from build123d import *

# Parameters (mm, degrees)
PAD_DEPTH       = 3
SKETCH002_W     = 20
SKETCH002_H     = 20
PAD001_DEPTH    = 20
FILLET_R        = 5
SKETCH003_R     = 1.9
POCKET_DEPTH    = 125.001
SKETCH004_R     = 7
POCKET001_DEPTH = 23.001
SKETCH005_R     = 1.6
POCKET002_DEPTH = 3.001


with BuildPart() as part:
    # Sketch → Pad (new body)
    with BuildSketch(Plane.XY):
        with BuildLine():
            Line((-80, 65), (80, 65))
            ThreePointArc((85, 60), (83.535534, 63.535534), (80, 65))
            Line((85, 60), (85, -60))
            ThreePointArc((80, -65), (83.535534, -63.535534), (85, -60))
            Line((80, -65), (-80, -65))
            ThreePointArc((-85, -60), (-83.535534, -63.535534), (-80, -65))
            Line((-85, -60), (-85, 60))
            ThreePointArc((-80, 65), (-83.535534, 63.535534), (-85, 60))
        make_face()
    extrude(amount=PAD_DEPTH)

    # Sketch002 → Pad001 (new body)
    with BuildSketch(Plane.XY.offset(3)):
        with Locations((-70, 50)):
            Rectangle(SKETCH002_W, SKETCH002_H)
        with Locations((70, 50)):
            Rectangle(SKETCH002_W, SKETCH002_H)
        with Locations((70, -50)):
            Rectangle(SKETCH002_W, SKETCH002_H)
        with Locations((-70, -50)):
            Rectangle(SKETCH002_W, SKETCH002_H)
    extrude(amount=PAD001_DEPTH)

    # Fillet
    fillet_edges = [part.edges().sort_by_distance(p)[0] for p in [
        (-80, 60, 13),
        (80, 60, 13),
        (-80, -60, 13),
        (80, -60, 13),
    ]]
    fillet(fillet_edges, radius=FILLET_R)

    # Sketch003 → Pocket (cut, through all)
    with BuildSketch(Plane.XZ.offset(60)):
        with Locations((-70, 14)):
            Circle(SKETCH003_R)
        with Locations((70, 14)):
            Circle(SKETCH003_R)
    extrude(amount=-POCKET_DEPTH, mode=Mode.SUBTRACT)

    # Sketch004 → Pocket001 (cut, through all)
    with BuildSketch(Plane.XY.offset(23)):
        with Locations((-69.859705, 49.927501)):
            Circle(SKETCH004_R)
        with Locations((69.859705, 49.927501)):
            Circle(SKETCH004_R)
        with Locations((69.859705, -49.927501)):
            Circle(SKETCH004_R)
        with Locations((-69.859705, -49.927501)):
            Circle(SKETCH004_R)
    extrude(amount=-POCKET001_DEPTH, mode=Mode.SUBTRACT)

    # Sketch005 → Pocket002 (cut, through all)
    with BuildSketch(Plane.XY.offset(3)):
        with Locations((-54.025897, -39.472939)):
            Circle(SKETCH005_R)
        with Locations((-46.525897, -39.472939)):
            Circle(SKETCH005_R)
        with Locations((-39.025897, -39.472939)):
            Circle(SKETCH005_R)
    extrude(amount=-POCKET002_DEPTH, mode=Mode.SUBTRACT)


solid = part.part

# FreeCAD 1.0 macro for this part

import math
import FreeCAD as App
import Part
import Sketcher
Q = App.Units.Quantity


def edges_at(feature, points):
    """Names of the edges that pass closest to the given points."""
    edges = feature.Shape.Edges
    near = lambda p: min(range(len(edges)), key=lambda i: edges[i].distToShape(Part.Vertex(*p))[0])
    return sorted({f"Edge{near(p) + 1}" for p in points})

doc = App.newDocument("Part")
body = doc.addObject("PartDesign::Body", "Body")

sketch1 = body.newObject("Sketcher::SketchObject", "Sketch")
sketch1.AttachmentSupport = (doc.getObject("XY_Plane"), [""])
sketch1.MapMode = "FlatFace"
sketch1.addGeometry([
    Part.LineSegment(App.Vector(80, 65, 0), App.Vector(-80, 65, 0)),
    Part.ArcOfCircle(Part.Circle(App.Vector(-80, 60, 0), App.Vector(0, 0, 1), 5), math.radians(90), math.radians(180)),
    Part.LineSegment(App.Vector(-85, 60, 0), App.Vector(-85, -60, 0)),
    Part.ArcOfCircle(Part.Circle(App.Vector(-80, -60, 0), App.Vector(0, 0, 1), 5), math.radians(180), math.radians(270)),
    Part.LineSegment(App.Vector(-80, -65, 0), App.Vector(80, -65, 0)),
    Part.ArcOfCircle(Part.Circle(App.Vector(80, -60, 0), App.Vector(0, 0, 1), 5), math.radians(-90), math.radians(0)),
    Part.LineSegment(App.Vector(85, -60, 0), App.Vector(85, 60, 0)),
    Part.ArcOfCircle(Part.Circle(App.Vector(80, 60, 0), App.Vector(0, 0, 1), 5), math.radians(0), math.radians(90)),
], False)
sketch1.addConstraint([
    Sketcher.Constraint("Tangent", 0, 2, 1, 1),
    Sketcher.Constraint("Tangent", 1, 2, 2, 1),
    Sketcher.Constraint("Tangent", 2, 2, 3, 1),
    Sketcher.Constraint("Tangent", 3, 2, 4, 1),
    Sketcher.Constraint("Tangent", 4, 2, 5, 1),
    Sketcher.Constraint("Tangent", 5, 2, 6, 1),
    Sketcher.Constraint("Tangent", 6, 2, 7, 1),
    Sketcher.Constraint("Tangent", 7, 2, 0, 1),
    Sketcher.Constraint("Horizontal", 0),
    Sketcher.Constraint("Vertical", 2),
    Sketcher.Constraint("Horizontal", 4),
    Sketcher.Constraint("Vertical", 6),
    Sketcher.Constraint("Equal", 1, 3),
    Sketcher.Constraint("Equal", 3, 5),
    Sketcher.Constraint("Equal", 5, 7),
    Sketcher.Constraint("Symmetric", 1, 3, 5, 3, -1, 1),
    Sketcher.Constraint("Radius", 1, Q("5 mm")),
    Sketcher.Constraint("DistanceX", 0, 2, 0, 1, Q("160 mm")),
    Sketcher.Constraint("DistanceY", 2, 2, 2, 1, Q("120 mm")),
])
pad1 = body.newObject("PartDesign::Pad", "Pad")
pad1.Profile = sketch1
pad1.Length = 3

sketch2 = body.newObject("Sketcher::SketchObject", "Sketch001")
sketch2.AttachmentSupport = (doc.getObject("XY_Plane"), [""])
sketch2.MapMode = "FlatFace"
sketch2.AttachmentOffset = App.Placement(App.Vector(0, 0, 3), App.Rotation())
sketch2.addGeometry([
    Part.LineSegment(App.Vector(-80, 60, 0), App.Vector(-80, 40, 0)),
    Part.LineSegment(App.Vector(-80, 40, 0), App.Vector(-60, 40, 0)),
    Part.LineSegment(App.Vector(-60, 40, 0), App.Vector(-60, 60, 0)),
    Part.LineSegment(App.Vector(-60, 60, 0), App.Vector(-80, 60, 0)),
    Part.LineSegment(App.Vector(60, 60, 0), App.Vector(60, 40, 0)),
    Part.LineSegment(App.Vector(60, 40, 0), App.Vector(80, 40, 0)),
    Part.LineSegment(App.Vector(80, 40, 0), App.Vector(80, 60, 0)),
    Part.LineSegment(App.Vector(80, 60, 0), App.Vector(60, 60, 0)),
    Part.LineSegment(App.Vector(60, -40, 0), App.Vector(60, -60, 0)),
    Part.LineSegment(App.Vector(60, -60, 0), App.Vector(80, -60, 0)),
    Part.LineSegment(App.Vector(80, -60, 0), App.Vector(80, -40, 0)),
    Part.LineSegment(App.Vector(80, -40, 0), App.Vector(60, -40, 0)),
    Part.LineSegment(App.Vector(-80, -40, 0), App.Vector(-80, -60, 0)),
    Part.LineSegment(App.Vector(-80, -60, 0), App.Vector(-60, -60, 0)),
    Part.LineSegment(App.Vector(-60, -60, 0), App.Vector(-60, -40, 0)),
    Part.LineSegment(App.Vector(-60, -40, 0), App.Vector(-80, -40, 0)),
], False)
sketch2.addConstraint([
    Sketcher.Constraint("Coincident", 0, 2, 1, 1),
    Sketcher.Constraint("Coincident", 1, 2, 2, 1),
    Sketcher.Constraint("Coincident", 2, 2, 3, 1),
    Sketcher.Constraint("Coincident", 3, 2, 0, 1),
    Sketcher.Constraint("Coincident", 4, 2, 5, 1),
    Sketcher.Constraint("Coincident", 5, 2, 6, 1),
    Sketcher.Constraint("Coincident", 6, 2, 7, 1),
    Sketcher.Constraint("Coincident", 7, 2, 4, 1),
    Sketcher.Constraint("Coincident", 8, 2, 9, 1),
    Sketcher.Constraint("Coincident", 9, 2, 10, 1),
    Sketcher.Constraint("Coincident", 10, 2, 11, 1),
    Sketcher.Constraint("Coincident", 11, 2, 8, 1),
    Sketcher.Constraint("Coincident", 12, 2, 13, 1),
    Sketcher.Constraint("Coincident", 13, 2, 14, 1),
    Sketcher.Constraint("Coincident", 14, 2, 15, 1),
    Sketcher.Constraint("Coincident", 15, 2, 12, 1),
    Sketcher.Constraint("Vertical", 0),
    Sketcher.Constraint("Horizontal", 1),
    Sketcher.Constraint("Vertical", 2),
    Sketcher.Constraint("Horizontal", 3),
    Sketcher.Constraint("Vertical", 4),
    Sketcher.Constraint("Horizontal", 5),
    Sketcher.Constraint("Vertical", 6),
    Sketcher.Constraint("Horizontal", 7),
    Sketcher.Constraint("Vertical", 8),
    Sketcher.Constraint("Horizontal", 9),
    Sketcher.Constraint("Vertical", 10),
    Sketcher.Constraint("Horizontal", 11),
    Sketcher.Constraint("Vertical", 12),
    Sketcher.Constraint("Horizontal", 13),
    Sketcher.Constraint("Vertical", 14),
    Sketcher.Constraint("Horizontal", 15),
    Sketcher.Constraint("Symmetric", 2, 2, 8, 2, -1, 1),
    Sketcher.Constraint("Symmetric", 0, 2, 10, 2, -1, 1),
    Sketcher.Constraint("Symmetric", 6, 2, 12, 2, -1, 1),
    Sketcher.Constraint("Symmetric", 4, 2, 14, 2, -1, 1),
    Sketcher.Constraint("Symmetric", 1, 2, 4, 2, -2),
    Sketcher.Constraint("Symmetric", 3, 2, 6, 2, -2),
    Sketcher.Constraint("Equal", 15, 0),
    Sketcher.Constraint("DistanceX", 1, 1, 1, 2, Q("20 mm")),
    Sketcher.Constraint("DistanceX", 0, 2, -1, 1, Q("80 mm")),
    Sketcher.Constraint("DistanceY", -1, 1, 0, 2, Q("40 mm")),
])
pad2 = body.newObject("PartDesign::Pad", "Pad001")
pad2.Profile = sketch2
pad2.Length = 20
doc.recompute()

fillet = body.newObject("PartDesign::Fillet", "Fillet")
fillet.Base = (pad2, edges_at(pad2, [
    (-80, 60, 13),
    (80, 60, 13),
    (-80, -60, 13),
    (80, -60, 13),
]))
fillet.Radius = 5

sketch3 = body.newObject("Sketcher::SketchObject", "Sketch002")
sketch3.AttachmentSupport = (doc.getObject("XZ_Plane"), [""])
sketch3.MapMode = "FlatFace"
sketch3.AttachmentOffset = App.Placement(App.Vector(0, 0, 60), App.Rotation())
sketch3.addGeometry([
    Part.Circle(App.Vector(-70, 14, 0), App.Vector(0, 0, 1), 1.9),
    Part.Circle(App.Vector(70, 14, 0), App.Vector(0, 0, 1), 1.9),
], False)
sketch3.addConstraint([
    Sketcher.Constraint("Equal", 0, 1),
    Sketcher.Constraint("Symmetric", 0, 3, 1, 3, -2),
    Sketcher.Constraint("Diameter", 0, Q("3.8 mm")),
    Sketcher.Constraint("DistanceX", 0, 3, -1, 1, Q("70 mm")),
    Sketcher.Constraint("DistanceY", -1, 1, 0, 3, Q("14 mm")),
])
pocket1 = body.newObject("PartDesign::Pocket", "Pocket")
pocket1.Profile = sketch3
pocket1.Type = "ThroughAll"

sketch4 = body.newObject("Sketcher::SketchObject", "Sketch003")
sketch4.AttachmentSupport = (doc.getObject("XY_Plane"), [""])
sketch4.MapMode = "FlatFace"
sketch4.AttachmentOffset = App.Placement(App.Vector(0, 0, 23), App.Rotation())
sketch4.addGeometry([
    Part.Circle(App.Vector(-70, 50, 0), App.Vector(0, 0, 1), 7),
    Part.Circle(App.Vector(70, 50, 0), App.Vector(0, 0, 1), 7),
    Part.Circle(App.Vector(70, -50, 0), App.Vector(0, 0, 1), 7),
    Part.Circle(App.Vector(-70, -50, 0), App.Vector(0, 0, 1), 7),
], False)
sketch4.addConstraint([
    Sketcher.Constraint("Equal", 0, 1),
    Sketcher.Constraint("Equal", 1, 2),
    Sketcher.Constraint("Equal", 2, 3),
    Sketcher.Constraint("Symmetric", 0, 3, 2, 3, -1, 1),
    Sketcher.Constraint("Symmetric", 1, 3, 3, 3, -1, 1),
    Sketcher.Constraint("Symmetric", 0, 3, 1, 3, -2),
    Sketcher.Constraint("Diameter", 0, Q("14 mm")),
    Sketcher.Constraint("DistanceY", 2, 3, 1, 3, Q("99.855002 mm")),
    Sketcher.Constraint("DistanceX", 0, 3, 1, 3, Q("139.71941 mm")),
])
pocket2 = body.newObject("PartDesign::Pocket", "Pocket001")
pocket2.Profile = sketch4
pocket2.Type = "ThroughAll"

sketch5 = body.newObject("Sketcher::SketchObject", "Sketch004")
sketch5.AttachmentSupport = (doc.getObject("XY_Plane"), [""])
sketch5.MapMode = "FlatFace"
sketch5.AttachmentOffset = App.Placement(App.Vector(0, 0, 3), App.Rotation())
sketch5.addGeometry([
    Part.Circle(App.Vector(-54, -39.5, 0), App.Vector(0, 0, 1), 1.6),
    Part.Circle(App.Vector(-46.5, -39.5, 0), App.Vector(0, 0, 1), 1.6),
    Part.Circle(App.Vector(-39, -39.5, 0), App.Vector(0, 0, 1), 1.6),
], False)
sketch5.addConstraint([
    Sketcher.Constraint("Equal", 0, 1),
    Sketcher.Constraint("Equal", 1, 2),
    Sketcher.Constraint("Horizontal", 0, 3, 1, 3),
    Sketcher.Constraint("Horizontal", 1, 3, 2, 3),
    Sketcher.Constraint("Diameter", 0, Q("3.2 mm")),
    Sketcher.Constraint("DistanceX", 0, 3, 2, 3, Q("15 mm")),
    Sketcher.Constraint("DistanceX", 0, 3, 1, 3, Q("7.5 mm")),
    Sketcher.Constraint("DistanceY", 0, 3, -1, 1, Q("39.472939 mm")),
    Sketcher.Constraint("DistanceX", 0, 3, -1, 1, Q("54.025897 mm")),
])
pocket3 = body.newObject("PartDesign::Pocket", "Pocket002")
pocket3.Profile = sketch5
pocket3.Type = "ThroughAll"

doc.recompute()
